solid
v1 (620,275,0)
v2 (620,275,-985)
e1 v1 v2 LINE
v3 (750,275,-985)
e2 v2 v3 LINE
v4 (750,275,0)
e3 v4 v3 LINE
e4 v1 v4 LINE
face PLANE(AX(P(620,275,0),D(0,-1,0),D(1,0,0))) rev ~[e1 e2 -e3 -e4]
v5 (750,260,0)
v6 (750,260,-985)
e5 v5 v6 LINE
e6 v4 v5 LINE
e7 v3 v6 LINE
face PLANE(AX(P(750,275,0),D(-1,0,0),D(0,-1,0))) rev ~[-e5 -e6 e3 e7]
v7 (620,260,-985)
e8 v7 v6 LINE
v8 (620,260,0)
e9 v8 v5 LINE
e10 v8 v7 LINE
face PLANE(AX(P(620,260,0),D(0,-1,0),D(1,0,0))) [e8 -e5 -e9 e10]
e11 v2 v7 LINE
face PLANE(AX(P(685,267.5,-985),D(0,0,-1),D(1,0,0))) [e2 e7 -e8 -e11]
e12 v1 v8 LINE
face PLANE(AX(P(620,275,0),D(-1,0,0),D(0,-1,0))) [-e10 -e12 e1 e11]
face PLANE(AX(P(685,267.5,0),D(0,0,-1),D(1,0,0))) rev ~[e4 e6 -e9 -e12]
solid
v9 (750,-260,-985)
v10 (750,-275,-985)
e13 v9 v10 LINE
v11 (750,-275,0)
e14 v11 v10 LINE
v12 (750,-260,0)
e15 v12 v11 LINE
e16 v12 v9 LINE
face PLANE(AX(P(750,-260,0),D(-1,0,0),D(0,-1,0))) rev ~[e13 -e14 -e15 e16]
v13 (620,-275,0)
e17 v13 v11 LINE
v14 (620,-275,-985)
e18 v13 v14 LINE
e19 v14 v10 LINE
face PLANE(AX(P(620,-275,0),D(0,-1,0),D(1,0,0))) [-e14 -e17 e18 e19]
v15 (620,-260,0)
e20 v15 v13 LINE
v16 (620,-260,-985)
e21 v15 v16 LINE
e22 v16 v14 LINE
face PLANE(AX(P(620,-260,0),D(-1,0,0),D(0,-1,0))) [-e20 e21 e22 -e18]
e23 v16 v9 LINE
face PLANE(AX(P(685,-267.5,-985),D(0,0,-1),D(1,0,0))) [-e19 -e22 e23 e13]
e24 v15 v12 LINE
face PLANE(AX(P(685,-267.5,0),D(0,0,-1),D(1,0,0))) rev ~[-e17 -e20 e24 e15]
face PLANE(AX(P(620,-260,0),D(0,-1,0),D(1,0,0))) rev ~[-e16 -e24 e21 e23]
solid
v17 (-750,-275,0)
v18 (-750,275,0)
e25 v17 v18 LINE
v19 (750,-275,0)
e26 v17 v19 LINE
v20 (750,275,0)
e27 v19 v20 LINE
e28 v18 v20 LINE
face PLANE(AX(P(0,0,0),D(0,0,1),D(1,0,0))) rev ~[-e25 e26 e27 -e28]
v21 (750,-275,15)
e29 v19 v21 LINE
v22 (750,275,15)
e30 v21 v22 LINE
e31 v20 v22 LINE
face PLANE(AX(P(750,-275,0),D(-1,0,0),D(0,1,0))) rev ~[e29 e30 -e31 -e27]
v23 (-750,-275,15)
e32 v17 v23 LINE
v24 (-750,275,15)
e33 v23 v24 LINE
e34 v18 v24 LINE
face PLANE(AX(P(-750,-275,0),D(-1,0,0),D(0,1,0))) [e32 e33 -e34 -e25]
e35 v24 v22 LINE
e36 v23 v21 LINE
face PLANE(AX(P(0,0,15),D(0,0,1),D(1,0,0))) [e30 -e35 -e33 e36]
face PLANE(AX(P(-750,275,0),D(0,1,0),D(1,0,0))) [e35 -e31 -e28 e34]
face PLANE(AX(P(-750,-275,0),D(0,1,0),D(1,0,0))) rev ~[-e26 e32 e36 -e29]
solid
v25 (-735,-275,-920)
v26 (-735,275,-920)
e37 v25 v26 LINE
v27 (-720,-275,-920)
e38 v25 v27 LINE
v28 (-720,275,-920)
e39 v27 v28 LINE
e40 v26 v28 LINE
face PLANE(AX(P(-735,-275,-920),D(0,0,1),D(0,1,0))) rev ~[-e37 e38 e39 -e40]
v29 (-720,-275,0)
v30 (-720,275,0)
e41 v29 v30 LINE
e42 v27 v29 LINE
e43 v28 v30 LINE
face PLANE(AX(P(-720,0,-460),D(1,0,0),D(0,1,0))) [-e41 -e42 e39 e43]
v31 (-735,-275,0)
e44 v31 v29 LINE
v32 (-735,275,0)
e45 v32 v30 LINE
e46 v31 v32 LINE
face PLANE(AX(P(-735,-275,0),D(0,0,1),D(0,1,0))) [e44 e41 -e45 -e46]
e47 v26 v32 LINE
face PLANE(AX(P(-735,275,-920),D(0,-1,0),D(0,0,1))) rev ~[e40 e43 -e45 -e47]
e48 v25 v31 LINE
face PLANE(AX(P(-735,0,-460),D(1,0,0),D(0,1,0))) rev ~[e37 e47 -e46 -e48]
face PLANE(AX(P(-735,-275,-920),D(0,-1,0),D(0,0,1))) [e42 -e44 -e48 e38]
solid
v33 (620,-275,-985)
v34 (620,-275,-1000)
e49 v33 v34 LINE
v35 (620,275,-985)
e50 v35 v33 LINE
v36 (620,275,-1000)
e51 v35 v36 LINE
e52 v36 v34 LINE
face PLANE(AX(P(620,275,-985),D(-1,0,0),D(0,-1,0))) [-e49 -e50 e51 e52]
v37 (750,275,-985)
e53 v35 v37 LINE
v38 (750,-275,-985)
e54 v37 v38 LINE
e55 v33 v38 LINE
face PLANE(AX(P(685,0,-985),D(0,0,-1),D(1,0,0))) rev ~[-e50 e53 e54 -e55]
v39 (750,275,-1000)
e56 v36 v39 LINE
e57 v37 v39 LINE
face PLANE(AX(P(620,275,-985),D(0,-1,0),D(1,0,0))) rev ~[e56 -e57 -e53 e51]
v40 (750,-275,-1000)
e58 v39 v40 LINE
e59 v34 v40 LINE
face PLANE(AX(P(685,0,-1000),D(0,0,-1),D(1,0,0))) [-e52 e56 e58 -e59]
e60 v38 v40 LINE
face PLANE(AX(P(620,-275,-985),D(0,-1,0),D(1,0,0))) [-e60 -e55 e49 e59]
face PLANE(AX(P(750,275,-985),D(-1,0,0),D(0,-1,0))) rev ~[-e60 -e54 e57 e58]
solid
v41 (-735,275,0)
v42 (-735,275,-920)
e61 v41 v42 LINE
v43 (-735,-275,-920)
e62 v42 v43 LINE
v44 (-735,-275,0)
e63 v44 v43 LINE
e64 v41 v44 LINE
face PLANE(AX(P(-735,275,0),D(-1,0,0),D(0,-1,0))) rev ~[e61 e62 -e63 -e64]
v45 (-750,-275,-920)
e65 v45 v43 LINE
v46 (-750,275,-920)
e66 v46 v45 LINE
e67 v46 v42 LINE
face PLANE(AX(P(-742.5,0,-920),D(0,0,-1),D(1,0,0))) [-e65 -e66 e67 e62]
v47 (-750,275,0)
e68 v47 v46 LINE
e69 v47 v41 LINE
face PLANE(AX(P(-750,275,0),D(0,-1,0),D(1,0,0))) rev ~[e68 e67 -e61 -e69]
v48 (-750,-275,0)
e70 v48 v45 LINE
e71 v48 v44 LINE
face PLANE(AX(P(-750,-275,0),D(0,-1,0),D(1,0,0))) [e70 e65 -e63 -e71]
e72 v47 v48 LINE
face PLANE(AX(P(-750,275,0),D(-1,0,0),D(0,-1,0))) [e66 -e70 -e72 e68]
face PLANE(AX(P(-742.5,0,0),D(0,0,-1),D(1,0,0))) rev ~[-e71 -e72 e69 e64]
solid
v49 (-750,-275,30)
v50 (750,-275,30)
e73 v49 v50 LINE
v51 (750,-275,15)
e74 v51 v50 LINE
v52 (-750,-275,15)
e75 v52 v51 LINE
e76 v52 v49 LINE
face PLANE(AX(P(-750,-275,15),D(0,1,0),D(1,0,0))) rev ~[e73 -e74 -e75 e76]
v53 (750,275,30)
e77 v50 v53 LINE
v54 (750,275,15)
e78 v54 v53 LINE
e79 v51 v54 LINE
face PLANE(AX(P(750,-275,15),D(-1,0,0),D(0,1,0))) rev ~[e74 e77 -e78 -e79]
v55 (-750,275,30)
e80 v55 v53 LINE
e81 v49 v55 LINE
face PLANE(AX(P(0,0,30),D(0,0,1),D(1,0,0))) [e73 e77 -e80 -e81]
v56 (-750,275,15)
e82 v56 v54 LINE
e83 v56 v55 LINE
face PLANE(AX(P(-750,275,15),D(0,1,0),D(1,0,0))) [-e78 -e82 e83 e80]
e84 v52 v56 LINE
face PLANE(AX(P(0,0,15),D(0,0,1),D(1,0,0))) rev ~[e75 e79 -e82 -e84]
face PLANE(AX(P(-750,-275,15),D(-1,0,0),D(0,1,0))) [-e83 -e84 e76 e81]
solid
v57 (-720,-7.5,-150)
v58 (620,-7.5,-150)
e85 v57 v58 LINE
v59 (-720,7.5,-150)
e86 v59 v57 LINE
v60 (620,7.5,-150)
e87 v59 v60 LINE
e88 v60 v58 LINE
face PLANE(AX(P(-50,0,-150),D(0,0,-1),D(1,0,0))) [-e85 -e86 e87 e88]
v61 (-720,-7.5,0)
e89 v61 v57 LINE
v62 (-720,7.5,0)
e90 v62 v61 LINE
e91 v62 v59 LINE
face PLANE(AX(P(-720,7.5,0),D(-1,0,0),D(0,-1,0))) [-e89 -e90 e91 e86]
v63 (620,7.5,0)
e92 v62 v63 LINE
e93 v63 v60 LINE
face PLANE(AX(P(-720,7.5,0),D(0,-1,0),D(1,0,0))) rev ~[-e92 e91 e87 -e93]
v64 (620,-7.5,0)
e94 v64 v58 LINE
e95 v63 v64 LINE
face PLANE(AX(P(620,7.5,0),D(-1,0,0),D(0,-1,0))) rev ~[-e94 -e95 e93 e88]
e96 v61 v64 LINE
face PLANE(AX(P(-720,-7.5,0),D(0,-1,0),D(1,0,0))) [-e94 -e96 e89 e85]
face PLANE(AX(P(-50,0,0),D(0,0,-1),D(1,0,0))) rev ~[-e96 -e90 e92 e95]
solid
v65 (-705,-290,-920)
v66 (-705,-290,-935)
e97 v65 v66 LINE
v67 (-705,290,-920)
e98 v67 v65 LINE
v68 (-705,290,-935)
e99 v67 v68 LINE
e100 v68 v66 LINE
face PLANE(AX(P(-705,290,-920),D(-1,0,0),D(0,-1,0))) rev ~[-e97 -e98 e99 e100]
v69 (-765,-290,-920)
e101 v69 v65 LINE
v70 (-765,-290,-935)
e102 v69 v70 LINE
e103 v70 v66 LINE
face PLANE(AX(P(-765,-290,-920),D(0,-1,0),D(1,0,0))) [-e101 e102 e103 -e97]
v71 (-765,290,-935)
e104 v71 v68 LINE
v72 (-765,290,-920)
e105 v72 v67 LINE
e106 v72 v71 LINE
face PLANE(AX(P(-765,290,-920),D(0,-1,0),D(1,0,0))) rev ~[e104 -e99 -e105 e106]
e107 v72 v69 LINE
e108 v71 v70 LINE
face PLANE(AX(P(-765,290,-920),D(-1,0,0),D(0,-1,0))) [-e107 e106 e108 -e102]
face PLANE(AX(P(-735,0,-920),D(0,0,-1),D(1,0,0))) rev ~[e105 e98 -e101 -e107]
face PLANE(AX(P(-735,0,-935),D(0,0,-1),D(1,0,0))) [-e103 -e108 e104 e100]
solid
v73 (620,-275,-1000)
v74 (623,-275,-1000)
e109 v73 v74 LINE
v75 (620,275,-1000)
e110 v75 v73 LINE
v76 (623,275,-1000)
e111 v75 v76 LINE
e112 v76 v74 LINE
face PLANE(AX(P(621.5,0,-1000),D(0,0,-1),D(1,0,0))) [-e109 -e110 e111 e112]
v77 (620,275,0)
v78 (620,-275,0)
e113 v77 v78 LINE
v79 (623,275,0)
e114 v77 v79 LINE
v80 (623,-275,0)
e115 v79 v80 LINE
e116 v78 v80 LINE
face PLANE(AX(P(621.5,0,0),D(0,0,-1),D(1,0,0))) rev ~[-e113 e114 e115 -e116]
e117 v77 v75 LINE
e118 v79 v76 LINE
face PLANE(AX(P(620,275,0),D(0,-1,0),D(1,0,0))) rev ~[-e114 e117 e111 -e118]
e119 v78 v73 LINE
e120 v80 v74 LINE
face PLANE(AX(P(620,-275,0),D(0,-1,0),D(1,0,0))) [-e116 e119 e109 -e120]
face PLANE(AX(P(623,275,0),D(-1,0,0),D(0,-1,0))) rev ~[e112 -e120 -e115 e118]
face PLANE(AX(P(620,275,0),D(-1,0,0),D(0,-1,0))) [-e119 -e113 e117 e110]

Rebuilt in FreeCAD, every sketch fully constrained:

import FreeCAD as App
import Part
import Sketcher

V = App.Vector

doc = App.newDocument("Part")
params = doc.addObject("Spreadsheet::Sheet", "Params")
for row, (alias, value) in enumerate([
    ("sketch1_width", "1500 mm"),
    ("sketch1_height", "550 mm"),
    ("pad1_length", "15 mm"),
    ("sketch2_width", "1500 mm"),
    ("sketch2_height", "550 mm"),
    ("pad2_length", "15 mm"),
    ("sketch3_width", "15 mm"),
    ("sketch3_height", "550 mm"),
    ("pad3_length", "920 mm"),
    ("sketch4_width", "550 mm"),
    ("sketch4_height", "920 mm"),
    ("pad4_length", "15 mm"),
    ("sketch5_width", "130 mm"),
    ("sketch5_height", "15 mm"),
    ("pad5_length", "985 mm"),
    ("sketch6_width", "130 mm"),
    ("sketch6_height", "550 mm"),
    ("pad6_length", "15 mm"),
    ("sketch7_width", "3 mm"),
    ("sketch7_height", "550 mm"),
    ("pad7_length", "1000 mm"),
    ("sketch8_width", "1340 mm"),
    ("sketch8_height", "15 mm"),
    ("pad8_length", "150 mm"),
    ("sketch9_width", "60 mm"),
    ("sketch9_height", "580 mm"),
    ("pad9_length", "15 mm"),
], start=1):
    params.set(f"A{row}", alias)
    params.set(f"B{row}", "=" + value)
    params.setAlias(f"B{row}", alias)

body = doc.addObject("PartDesign::Body", "Body")

# Sketch on XY plane
sketch1 = doc.addObject("Sketcher::SketchObject", "Sketch")
body.addObject(sketch1)
sketch1.AttachmentSupport = (doc.XY_Plane, [""])
sketch1.MapMode = "FlatFace"
sketch1.addGeometry([
    Part.LineSegment(V(-750, 275, 0), V(-750, -275, 0)),
    Part.LineSegment(V(-750, -275, 0), V(750, -275, 0)),
    Part.LineSegment(V(750, -275, 0), V(750, 275, 0)),
    Part.LineSegment(V(750, 275, 0), V(-750, 275, 0)),
], False)
sketch1.addConstraint([
    Sketcher.Constraint("Coincident", 0, 2, 1, 1),
    Sketcher.Constraint("Coincident", 1, 2, 2, 1),
    Sketcher.Constraint("Coincident", 2, 2, 3, 1),
    Sketcher.Constraint("Coincident", 3, 2, 0, 1),
    Sketcher.Constraint("Vertical", 0),
    Sketcher.Constraint("Horizontal", 1),
    Sketcher.Constraint("Vertical", 2),
    Sketcher.Constraint("Horizontal", 3),
    Sketcher.Constraint("Symmetric", 0, 2, 2, 2, -1, 1),
    Sketcher.Constraint("DistanceX", 1, 1, 1, 2, 1500.0),
    Sketcher.Constraint("DistanceY", 0, 2, 0, 1, 550.0),
])
sketch1.setExpression("Constraints[9]", "Params.sketch1_width")
sketch1.setExpression("Constraints[10]", "Params.sketch1_height")
pad1 = doc.addObject("PartDesign::Pad", "Pad")
body.addObject(pad1)
pad1.Profile = sketch1
pad1.setExpression("Length", "Params.pad1_length")
body2 = doc.addObject("PartDesign::Body", "Body001")

# Sketch on XY plane
sketch2 = doc.addObject("Sketcher::SketchObject", "Sketch001")
body2.addObject(sketch2)
sketch2.AttachmentSupport = (doc.getObject("XY_Plane001"), [""])
sketch2.MapMode = "FlatFace"
sketch2.AttachmentOffset = App.Placement(V(0, 0, 15), App.Rotation())
sketch2.addGeometry([
    Part.LineSegment(V(-750, 275, 0), V(-750, -275, 0)),
    Part.LineSegment(V(-750, -275, 0), V(750, -275, 0)),
    Part.LineSegment(V(750, -275, 0), V(750, 275, 0)),
    Part.LineSegment(V(750, 275, 0), V(-750, 275, 0)),
], False)
sketch2.addConstraint([
    Sketcher.Constraint("Coincident", 0, 2, 1, 1),
    Sketcher.Constraint("Coincident", 1, 2, 2, 1),
    Sketcher.Constraint("Coincident", 2, 2, 3, 1),
    Sketcher.Constraint("Coincident", 3, 2, 0, 1),
    Sketcher.Constraint("Vertical", 0),
    Sketcher.Constraint("Horizontal", 1),
    Sketcher.Constraint("Vertical", 2),
    Sketcher.Constraint("Horizontal", 3),
    Sketcher.Constraint("Symmetric", 0, 2, 2, 2, -1, 1),
    Sketcher.Constraint("DistanceX", 1, 1, 1, 2, 1500.0),
    Sketcher.Constraint("DistanceY", 0, 2, 0, 1, 550.0),
])
sketch2.setExpression("Constraints[9]", "Params.sketch2_width")
sketch2.setExpression("Constraints[10]", "Params.sketch2_height")
pad2 = doc.addObject("PartDesign::Pad", "Pad001")
body2.addObject(pad2)
pad2.Profile = sketch2
pad2.setExpression("Length", "Params.pad2_length")
body3 = doc.addObject("PartDesign::Body", "Body002")

# Sketch on XY plane
sketch3 = doc.addObject("Sketcher::SketchObject", "Sketch002")
body3.addObject(sketch3)
sketch3.AttachmentSupport = (doc.getObject("XY_Plane002"), [""])
sketch3.MapMode = "FlatFace"
sketch3.addGeometry([
    Part.LineSegment(V(-750, -275, 0), V(-750, 275, 0)),
    Part.LineSegment(V(-750, 275, 0), V(-735, 275, 0)),
    Part.LineSegment(V(-735, 275, 0), V(-735, -275, 0)),
    Part.LineSegment(V(-735, -275, 0), V(-750, -275, 0)),
], False)
sketch3.addConstraint([
    Sketcher.Constraint("Coincident", 0, 2, 1, 1),
    Sketcher.Constraint("Coincident", 1, 2, 2, 1),
    Sketcher.Constraint("Coincident", 2, 2, 3, 1),
    Sketcher.Constraint("Coincident", 3, 2, 0, 1),
    Sketcher.Constraint("Vertical", 0),
    Sketcher.Constraint("Horizontal", 1),
    Sketcher.Constraint("Vertical", 2),
    Sketcher.Constraint("Horizontal", 3),
    Sketcher.Constraint("DistanceX", 1, 1, 1, 2, 15.0),
    Sketcher.Constraint("DistanceY", 0, 1, 0, 2, 550.0),
    Sketcher.Constraint("DistanceX", 0, 2, -1, 1, 750.0),
    Sketcher.Constraint("DistanceY", -1, 1, 0, 2, 275.0),
])
sketch3.setExpression("Constraints[8]", "Params.sketch3_width")
sketch3.setExpression("Constraints[9]", "Params.sketch3_height")
pad3 = doc.addObject("PartDesign::Pad", "Pad002")
body3.addObject(pad3)
pad3.Profile = sketch3
pad3.setExpression("Length", "Params.pad3_length")
pad3.Reversed = True
body4 = doc.addObject("PartDesign::Body", "Body003")

# Sketch on YZ plane
sketch4 = doc.addObject("Sketcher::SketchObject", "Sketch003")
body4.addObject(sketch4)
sketch4.AttachmentSupport = (doc.getObject("YZ_Plane003"), [""])
sketch4.MapMode = "FlatFace"
sketch4.AttachmentOffset = App.Placement(V(0, 0, -735), App.Rotation())
sketch4.addGeometry([
    Part.LineSegment(V(-275, 0, 0), V(-275, -920, 0)),
    Part.LineSegment(V(-275, -920, 0), V(275, -920, 0)),
    Part.LineSegment(V(275, -920, 0), V(275, 0, 0)),
    Part.LineSegment(V(275, 0, 0), V(-275, 0, 0)),
], False)
sketch4.addConstraint([
    Sketcher.Constraint("Coincident", 0, 2, 1, 1),
    Sketcher.Constraint("Coincident", 1, 2, 2, 1),
    Sketcher.Constraint("Coincident", 2, 2, 3, 1),
    Sketcher.Constraint("Coincident", 3, 2, 0, 1),
    Sketcher.Constraint("Vertical", 0),
    Sketcher.Constraint("Horizontal", 1),
    Sketcher.Constraint("Vertical", 2),
    Sketcher.Constraint("Horizontal", 3),
    Sketcher.Constraint("Symmetric", 2, 2, 3, 2, -1, 1),
    Sketcher.Constraint("DistanceX", 1, 1, 1, 2, 550.0),
    Sketcher.Constraint("DistanceY", 0, 2, 0, 1, 920.0),
])
sketch4.setExpression("Constraints[9]", "Params.sketch4_width")
sketch4.setExpression("Constraints[10]", "Params.sketch4_height")
pad4 = doc.addObject("PartDesign::Pad", "Pad003")
body4.addObject(pad4)
pad4.Profile = sketch4
pad4.setExpression("Length", "Params.pad4_length")
body5 = doc.addObject("PartDesign::Body", "Body004")
body5.AllowCompound = True

# Sketch on XY plane
sketch5 = doc.addObject("Sketcher::SketchObject", "Sketch004")
body5.addObject(sketch5)
sketch5.AttachmentSupport = (doc.getObject("XY_Plane004"), [""])
sketch5.MapMode = "FlatFace"
sketch5.addGeometry([
    Part.LineSegment(V(620, -275, 0), V(620, -260, 0)),  # 0
    Part.LineSegment(V(620, -260, 0), V(750, -260, 0)),  # 1
    Part.LineSegment(V(750, -260, 0), V(750, -275, 0)),  # 2
    Part.LineSegment(V(750, -275, 0), V(620, -275, 0)),  # 3
    Part.LineSegment(V(620, 260, 0), V(620, 275, 0)),  # 4
    Part.LineSegment(V(620, 275, 0), V(750, 275, 0)),  # 5
    Part.LineSegment(V(750, 275, 0), V(750, 260, 0)),  # 6
    Part.LineSegment(V(750, 260, 0), V(620, 260, 0)),  # 7
], False)
sketch5.addConstraint([
    Sketcher.Constraint("Coincident", 0, 2, 1, 1),
    Sketcher.Constraint("Coincident", 1, 2, 2, 1),
    Sketcher.Constraint("Coincident", 2, 2, 3, 1),
    Sketcher.Constraint("Coincident", 3, 2, 0, 1),
    Sketcher.Constraint("Coincident", 4, 2, 5, 1),
    Sketcher.Constraint("Coincident", 5, 2, 6, 1),
    Sketcher.Constraint("Coincident", 6, 2, 7, 1),
    Sketcher.Constraint("Coincident", 7, 2, 4, 1),
    Sketcher.Constraint("Vertical", 0),
    Sketcher.Constraint("Horizontal", 1),
    Sketcher.Constraint("Vertical", 2),
    Sketcher.Constraint("Horizontal", 3),
    Sketcher.Constraint("Vertical", 4),
    Sketcher.Constraint("Horizontal", 5),
    Sketcher.Constraint("Vertical", 6),
    Sketcher.Constraint("Horizontal", 7),
    Sketcher.Constraint("Symmetric", 3, 2, 4, 2, -1),
    Sketcher.Constraint("Symmetric", 1, 2, 6, 2, -1),
    Sketcher.Constraint("DistanceX", 1, 1, 1, 2, 130.0),
    Sketcher.Constraint("DistanceY", 0, 1, 0, 2, 15.0),
    Sketcher.Constraint("DistanceX", -1, 1, 0, 2, 620.0),
    Sketcher.Constraint("DistanceY", 0, 2, -1, 1, 260.0),
])
sketch5.setExpression("Constraints[18]", "Params.sketch5_width")
sketch5.setExpression("Constraints[19]", "Params.sketch5_height")
pad5 = doc.addObject("PartDesign::Pad", "Pad004")
body5.addObject(pad5)
pad5.Profile = sketch5
pad5.setExpression("Length", "Params.pad5_length")
pad5.Reversed = True
body6 = doc.addObject("PartDesign::Body", "Body005")

# Sketch on XY plane
sketch6 = doc.addObject("Sketcher::SketchObject", "Sketch005")
body6.addObject(sketch6)
sketch6.AttachmentSupport = (doc.getObject("XY_Plane005"), [""])
sketch6.MapMode = "FlatFace"
sketch6.AttachmentOffset = App.Placement(V(0, 0, -985), App.Rotation())
sketch6.addGeometry([
    Part.LineSegment(V(620, -275, 0), V(620, 275, 0)),
    Part.LineSegment(V(620, 275, 0), V(750, 275, 0)),
    Part.LineSegment(V(750, 275, 0), V(750, -275, 0)),
    Part.LineSegment(V(750, -275, 0), V(620, -275, 0)),
], False)
sketch6.addConstraint([
    Sketcher.Constraint("Coincident", 0, 2, 1, 1),
    Sketcher.Constraint("Coincident", 1, 2, 2, 1),
    Sketcher.Constraint("Coincident", 2, 2, 3, 1),
    Sketcher.Constraint("Coincident", 3, 2, 0, 1),
    Sketcher.Constraint("Vertical", 0),
    Sketcher.Constraint("Horizontal", 1),
    Sketcher.Constraint("Vertical", 2),
    Sketcher.Constraint("Horizontal", 3),
    Sketcher.Constraint("DistanceX", 1, 1, 1, 2, 130.0),
    Sketcher.Constraint("DistanceY", 0, 1, 0, 2, 550.0),
    Sketcher.Constraint("DistanceX", -1, 1, 0, 2, 620.0),
    Sketcher.Constraint("DistanceY", -1, 1, 0, 2, 275.0),
])
sketch6.setExpression("Constraints[8]", "Params.sketch6_width")
sketch6.setExpression("Constraints[9]", "Params.sketch6_height")
pad6 = doc.addObject("PartDesign::Pad", "Pad005")
body6.addObject(pad6)
pad6.Profile = sketch6
pad6.setExpression("Length", "Params.pad6_length")
pad6.Reversed = True
body7 = doc.addObject("PartDesign::Body", "Body006")

# Sketch on XY plane
sketch7 = doc.addObject("Sketcher::SketchObject", "Sketch006")
body7.addObject(sketch7)
sketch7.AttachmentSupport = (doc.getObject("XY_Plane006"), [""])
sketch7.MapMode = "FlatFace"
sketch7.addGeometry([
    Part.LineSegment(V(620, -275, 0), V(620, 275, 0)),
    Part.LineSegment(V(620, 275, 0), V(623, 275, 0)),
    Part.LineSegment(V(623, 275, 0), V(623, -275, 0)),
    Part.LineSegment(V(623, -275, 0), V(620, -275, 0)),
], False)
sketch7.addConstraint([
    Sketcher.Constraint("Coincident", 0, 2, 1, 1),
    Sketcher.Constraint("Coincident", 1, 2, 2, 1),
    Sketcher.Constraint("Coincident", 2, 2, 3, 1),
    Sketcher.Constraint("Coincident", 3, 2, 0, 1),
    Sketcher.Constraint("Vertical", 0),
    Sketcher.Constraint("Horizontal", 1),
    Sketcher.Constraint("Vertical", 2),
    Sketcher.Constraint("Horizontal", 3),
    Sketcher.Constraint("DistanceX", 1, 1, 1, 2, 3.0),
    Sketcher.Constraint("DistanceY", 0, 1, 0, 2, 550.0),
    Sketcher.Constraint("DistanceX", -1, 1, 0, 2, 620.0),
    Sketcher.Constraint("DistanceY", -1, 1, 0, 2, 275.0),
])
sketch7.setExpression("Constraints[8]", "Params.sketch7_width")
sketch7.setExpression("Constraints[9]", "Params.sketch7_height")
pad7 = doc.addObject("PartDesign::Pad", "Pad006")
body7.addObject(pad7)
pad7.Profile = sketch7
pad7.setExpression("Length", "Params.pad7_length")
pad7.Reversed = True
body8 = doc.addObject("PartDesign::Body", "Body007")

# Sketch on XY plane
sketch8 = doc.addObject("Sketcher::SketchObject", "Sketch007")
body8.addObject(sketch8)
sketch8.AttachmentSupport = (doc.getObject("XY_Plane007"), [""])
sketch8.MapMode = "FlatFace"
sketch8.addGeometry([
    Part.LineSegment(V(-720, -8, 0), V(-720, 8, 0)),
    Part.LineSegment(V(-720, 8, 0), V(620, 8, 0)),
    Part.LineSegment(V(620, 8, 0), V(620, -8, 0)),
    Part.LineSegment(V(620, -8, 0), V(-720, -8, 0)),
], False)
sketch8.addConstraint([
    Sketcher.Constraint("Coincident", 0, 2, 1, 1),
    Sketcher.Constraint("Coincident", 1, 2, 2, 1),
    Sketcher.Constraint("Coincident", 2, 2, 3, 1),
    Sketcher.Constraint("Coincident", 3, 2, 0, 1),
    Sketcher.Constraint("Vertical", 0),
    Sketcher.Constraint("Horizontal", 1),
    Sketcher.Constraint("Vertical", 2),
    Sketcher.Constraint("Horizontal", 3),
    Sketcher.Constraint("DistanceX", 1, 1, 1, 2, 1340.0),
    Sketcher.Constraint("DistanceY", 0, 1, 0, 2, 15.0),
    Sketcher.Constraint("DistanceX", 0, 2, -1, 1, 720.0),
    Sketcher.Constraint("DistanceY", -1, 1, 0, 2, 7.5),
])
sketch8.setExpression("Constraints[8]", "Params.sketch8_width")
sketch8.setExpression("Constraints[9]", "Params.sketch8_height")
pad8 = doc.addObject("PartDesign::Pad", "Pad007")
body8.addObject(pad8)
pad8.Profile = sketch8
pad8.setExpression("Length", "Params.pad8_length")
pad8.Reversed = True
body9 = doc.addObject("PartDesign::Body", "Body008")

# Sketch on XY plane
sketch9 = doc.addObject("Sketcher::SketchObject", "Sketch008")
body9.addObject(sketch9)
sketch9.AttachmentSupport = (doc.getObject("XY_Plane008"), [""])
sketch9.MapMode = "FlatFace"
sketch9.AttachmentOffset = App.Placement(V(0, 0, -920), App.Rotation())
sketch9.addGeometry([
    Part.LineSegment(V(-765, -290, 0), V(-765, 290, 0)),
    Part.LineSegment(V(-765, 290, 0), V(-705, 290, 0)),
    Part.LineSegment(V(-705, 290, 0), V(-705, -290, 0)),
    Part.LineSegment(V(-705, -290, 0), V(-765, -290, 0)),
], False)
sketch9.addConstraint([
    Sketcher.Constraint("Coincident", 0, 2, 1, 1),
    Sketcher.Constraint("Coincident", 1, 2, 2, 1),
    Sketcher.Constraint("Coincident", 2, 2, 3, 1),
    Sketcher.Constraint("Coincident", 3, 2, 0, 1),
    Sketcher.Constraint("Vertical", 0),
    Sketcher.Constraint("Horizontal", 1),
    Sketcher.Constraint("Vertical", 2),
    Sketcher.Constraint("Horizontal", 3),
    Sketcher.Constraint("DistanceX", 1, 1, 1, 2, 60.0),
    Sketcher.Constraint("DistanceY", 0, 1, 0, 2, 580.0),
    Sketcher.Constraint("DistanceX", 0, 2, -1, 1, 765.0),
    Sketcher.Constraint("DistanceY", -1, 1, 0, 2, 290.0),
])
sketch9.setExpression("Constraints[8]", "Params.sketch9_width")
sketch9.setExpression("Constraints[9]", "Params.sketch9_height")
pad9 = doc.addObject("PartDesign::Pad", "Pad008")
body9.addObject(pad9)
pad9.Profile = sketch9
pad9.setExpression("Length", "Params.pad9_length")
pad9.Reversed = True

doc.recompute()
